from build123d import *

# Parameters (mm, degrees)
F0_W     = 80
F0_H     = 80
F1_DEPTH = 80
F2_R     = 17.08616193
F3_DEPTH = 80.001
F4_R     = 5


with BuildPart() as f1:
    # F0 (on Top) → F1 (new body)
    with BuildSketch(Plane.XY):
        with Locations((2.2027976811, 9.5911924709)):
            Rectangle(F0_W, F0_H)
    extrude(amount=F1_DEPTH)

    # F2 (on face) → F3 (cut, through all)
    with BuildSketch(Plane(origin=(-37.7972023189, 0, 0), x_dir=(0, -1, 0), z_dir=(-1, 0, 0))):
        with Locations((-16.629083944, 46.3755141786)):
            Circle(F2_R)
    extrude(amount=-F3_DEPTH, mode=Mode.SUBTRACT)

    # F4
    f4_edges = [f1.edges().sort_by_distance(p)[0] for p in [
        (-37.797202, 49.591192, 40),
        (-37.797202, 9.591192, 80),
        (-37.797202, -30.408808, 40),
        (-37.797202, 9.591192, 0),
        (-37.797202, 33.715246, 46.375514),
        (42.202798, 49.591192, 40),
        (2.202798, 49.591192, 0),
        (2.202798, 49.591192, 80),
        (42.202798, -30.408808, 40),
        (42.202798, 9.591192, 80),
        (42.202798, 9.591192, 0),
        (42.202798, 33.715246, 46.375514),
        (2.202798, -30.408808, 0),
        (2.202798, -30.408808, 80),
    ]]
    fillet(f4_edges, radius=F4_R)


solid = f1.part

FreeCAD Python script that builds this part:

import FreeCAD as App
import Part
import Sketcher
Q = App.Units.Quantity

doc = App.newDocument("Part")
body = doc.addObject("PartDesign::Body", "Body")

sketch1 = body.newObject("Sketcher::SketchObject", "Sketch")
sketch1.AttachmentSupport = (doc.getObject("XY_Plane"), [""])
sketch1.MapMode = "FlatFace"
sketch1.addGeometry([
    Part.LineSegment(App.Vector(-38, 50, 0), App.Vector(-38, -30, 0)),
    Part.LineSegment(App.Vector(-38, -30, 0), App.Vector(42, -30, 0)),
    Part.LineSegment(App.Vector(42, -30, 0), App.Vector(42, 50, 0)),
    Part.LineSegment(App.Vector(42, 50, 0), App.Vector(-38, 50, 0)),
], False)
sketch1.addConstraint([
    Sketcher.Constraint("Coincident", 0, 2, 1, 1),
    Sketcher.Constraint("Coincident", 1, 2, 2, 1),
    Sketcher.Constraint("Coincident", 2, 2, 3, 1),
    Sketcher.Constraint("Coincident", 3, 2, 0, 1),
    Sketcher.Constraint("Vertical", 0),
    Sketcher.Constraint("Horizontal", 1),
    Sketcher.Constraint("Vertical", 2),
    Sketcher.Constraint("Horizontal", 3),
    Sketcher.Constraint("Equal", 3, 0),
    Sketcher.Constraint("DistanceX", 1, 1, 1, 2, Q("80 mm")),
    Sketcher.Constraint("DistanceX", 0, 2, -1, 1, Q("37.797202 mm")),
    Sketcher.Constraint("DistanceY", 0, 2, -1, 1, Q("30.408808 mm")),
])
pad1 = body.newObject("PartDesign::Pad", "Pad")
pad1.Profile = sketch1
pad1.Length = 80

sketch2 = body.newObject("Sketcher::SketchObject", "Sketch001")
sketch2.AttachmentSupport = (doc.getObject("YZ_Plane"), [""])
sketch2.MapMode = "FlatFace"
sketch2.AttachmentOffset = App.Placement(App.Vector(0, 0, -37.797202), App.Rotation())
sketch2.addGeometry(Part.Circle(App.Vector(17, 46, 0), App.Vector(0, 0, 1), 17), False)
sketch2.addConstraint([
    Sketcher.Constraint("Diameter", 0, Q("34.172324 mm")),
    Sketcher.Constraint("DistanceX", -1, 1, 0, 3, Q("16.629084 mm")),
    Sketcher.Constraint("DistanceY", -1, 1, 0, 3, Q("46.375514 mm")),
])
pocket1 = body.newObject("PartDesign::Pocket", "Pocket")
pocket1.Profile = sketch2
pocket1.Type = "ThroughAll"
pocket1.Reversed = True
doc.recompute()

fillet = body.newObject("PartDesign::Fillet", "Fillet")
fillet.Base = (pocket1, ["Edge1"])
fillet.UseAllEdges = True
fillet.Radius = 5

doc.recompute()
